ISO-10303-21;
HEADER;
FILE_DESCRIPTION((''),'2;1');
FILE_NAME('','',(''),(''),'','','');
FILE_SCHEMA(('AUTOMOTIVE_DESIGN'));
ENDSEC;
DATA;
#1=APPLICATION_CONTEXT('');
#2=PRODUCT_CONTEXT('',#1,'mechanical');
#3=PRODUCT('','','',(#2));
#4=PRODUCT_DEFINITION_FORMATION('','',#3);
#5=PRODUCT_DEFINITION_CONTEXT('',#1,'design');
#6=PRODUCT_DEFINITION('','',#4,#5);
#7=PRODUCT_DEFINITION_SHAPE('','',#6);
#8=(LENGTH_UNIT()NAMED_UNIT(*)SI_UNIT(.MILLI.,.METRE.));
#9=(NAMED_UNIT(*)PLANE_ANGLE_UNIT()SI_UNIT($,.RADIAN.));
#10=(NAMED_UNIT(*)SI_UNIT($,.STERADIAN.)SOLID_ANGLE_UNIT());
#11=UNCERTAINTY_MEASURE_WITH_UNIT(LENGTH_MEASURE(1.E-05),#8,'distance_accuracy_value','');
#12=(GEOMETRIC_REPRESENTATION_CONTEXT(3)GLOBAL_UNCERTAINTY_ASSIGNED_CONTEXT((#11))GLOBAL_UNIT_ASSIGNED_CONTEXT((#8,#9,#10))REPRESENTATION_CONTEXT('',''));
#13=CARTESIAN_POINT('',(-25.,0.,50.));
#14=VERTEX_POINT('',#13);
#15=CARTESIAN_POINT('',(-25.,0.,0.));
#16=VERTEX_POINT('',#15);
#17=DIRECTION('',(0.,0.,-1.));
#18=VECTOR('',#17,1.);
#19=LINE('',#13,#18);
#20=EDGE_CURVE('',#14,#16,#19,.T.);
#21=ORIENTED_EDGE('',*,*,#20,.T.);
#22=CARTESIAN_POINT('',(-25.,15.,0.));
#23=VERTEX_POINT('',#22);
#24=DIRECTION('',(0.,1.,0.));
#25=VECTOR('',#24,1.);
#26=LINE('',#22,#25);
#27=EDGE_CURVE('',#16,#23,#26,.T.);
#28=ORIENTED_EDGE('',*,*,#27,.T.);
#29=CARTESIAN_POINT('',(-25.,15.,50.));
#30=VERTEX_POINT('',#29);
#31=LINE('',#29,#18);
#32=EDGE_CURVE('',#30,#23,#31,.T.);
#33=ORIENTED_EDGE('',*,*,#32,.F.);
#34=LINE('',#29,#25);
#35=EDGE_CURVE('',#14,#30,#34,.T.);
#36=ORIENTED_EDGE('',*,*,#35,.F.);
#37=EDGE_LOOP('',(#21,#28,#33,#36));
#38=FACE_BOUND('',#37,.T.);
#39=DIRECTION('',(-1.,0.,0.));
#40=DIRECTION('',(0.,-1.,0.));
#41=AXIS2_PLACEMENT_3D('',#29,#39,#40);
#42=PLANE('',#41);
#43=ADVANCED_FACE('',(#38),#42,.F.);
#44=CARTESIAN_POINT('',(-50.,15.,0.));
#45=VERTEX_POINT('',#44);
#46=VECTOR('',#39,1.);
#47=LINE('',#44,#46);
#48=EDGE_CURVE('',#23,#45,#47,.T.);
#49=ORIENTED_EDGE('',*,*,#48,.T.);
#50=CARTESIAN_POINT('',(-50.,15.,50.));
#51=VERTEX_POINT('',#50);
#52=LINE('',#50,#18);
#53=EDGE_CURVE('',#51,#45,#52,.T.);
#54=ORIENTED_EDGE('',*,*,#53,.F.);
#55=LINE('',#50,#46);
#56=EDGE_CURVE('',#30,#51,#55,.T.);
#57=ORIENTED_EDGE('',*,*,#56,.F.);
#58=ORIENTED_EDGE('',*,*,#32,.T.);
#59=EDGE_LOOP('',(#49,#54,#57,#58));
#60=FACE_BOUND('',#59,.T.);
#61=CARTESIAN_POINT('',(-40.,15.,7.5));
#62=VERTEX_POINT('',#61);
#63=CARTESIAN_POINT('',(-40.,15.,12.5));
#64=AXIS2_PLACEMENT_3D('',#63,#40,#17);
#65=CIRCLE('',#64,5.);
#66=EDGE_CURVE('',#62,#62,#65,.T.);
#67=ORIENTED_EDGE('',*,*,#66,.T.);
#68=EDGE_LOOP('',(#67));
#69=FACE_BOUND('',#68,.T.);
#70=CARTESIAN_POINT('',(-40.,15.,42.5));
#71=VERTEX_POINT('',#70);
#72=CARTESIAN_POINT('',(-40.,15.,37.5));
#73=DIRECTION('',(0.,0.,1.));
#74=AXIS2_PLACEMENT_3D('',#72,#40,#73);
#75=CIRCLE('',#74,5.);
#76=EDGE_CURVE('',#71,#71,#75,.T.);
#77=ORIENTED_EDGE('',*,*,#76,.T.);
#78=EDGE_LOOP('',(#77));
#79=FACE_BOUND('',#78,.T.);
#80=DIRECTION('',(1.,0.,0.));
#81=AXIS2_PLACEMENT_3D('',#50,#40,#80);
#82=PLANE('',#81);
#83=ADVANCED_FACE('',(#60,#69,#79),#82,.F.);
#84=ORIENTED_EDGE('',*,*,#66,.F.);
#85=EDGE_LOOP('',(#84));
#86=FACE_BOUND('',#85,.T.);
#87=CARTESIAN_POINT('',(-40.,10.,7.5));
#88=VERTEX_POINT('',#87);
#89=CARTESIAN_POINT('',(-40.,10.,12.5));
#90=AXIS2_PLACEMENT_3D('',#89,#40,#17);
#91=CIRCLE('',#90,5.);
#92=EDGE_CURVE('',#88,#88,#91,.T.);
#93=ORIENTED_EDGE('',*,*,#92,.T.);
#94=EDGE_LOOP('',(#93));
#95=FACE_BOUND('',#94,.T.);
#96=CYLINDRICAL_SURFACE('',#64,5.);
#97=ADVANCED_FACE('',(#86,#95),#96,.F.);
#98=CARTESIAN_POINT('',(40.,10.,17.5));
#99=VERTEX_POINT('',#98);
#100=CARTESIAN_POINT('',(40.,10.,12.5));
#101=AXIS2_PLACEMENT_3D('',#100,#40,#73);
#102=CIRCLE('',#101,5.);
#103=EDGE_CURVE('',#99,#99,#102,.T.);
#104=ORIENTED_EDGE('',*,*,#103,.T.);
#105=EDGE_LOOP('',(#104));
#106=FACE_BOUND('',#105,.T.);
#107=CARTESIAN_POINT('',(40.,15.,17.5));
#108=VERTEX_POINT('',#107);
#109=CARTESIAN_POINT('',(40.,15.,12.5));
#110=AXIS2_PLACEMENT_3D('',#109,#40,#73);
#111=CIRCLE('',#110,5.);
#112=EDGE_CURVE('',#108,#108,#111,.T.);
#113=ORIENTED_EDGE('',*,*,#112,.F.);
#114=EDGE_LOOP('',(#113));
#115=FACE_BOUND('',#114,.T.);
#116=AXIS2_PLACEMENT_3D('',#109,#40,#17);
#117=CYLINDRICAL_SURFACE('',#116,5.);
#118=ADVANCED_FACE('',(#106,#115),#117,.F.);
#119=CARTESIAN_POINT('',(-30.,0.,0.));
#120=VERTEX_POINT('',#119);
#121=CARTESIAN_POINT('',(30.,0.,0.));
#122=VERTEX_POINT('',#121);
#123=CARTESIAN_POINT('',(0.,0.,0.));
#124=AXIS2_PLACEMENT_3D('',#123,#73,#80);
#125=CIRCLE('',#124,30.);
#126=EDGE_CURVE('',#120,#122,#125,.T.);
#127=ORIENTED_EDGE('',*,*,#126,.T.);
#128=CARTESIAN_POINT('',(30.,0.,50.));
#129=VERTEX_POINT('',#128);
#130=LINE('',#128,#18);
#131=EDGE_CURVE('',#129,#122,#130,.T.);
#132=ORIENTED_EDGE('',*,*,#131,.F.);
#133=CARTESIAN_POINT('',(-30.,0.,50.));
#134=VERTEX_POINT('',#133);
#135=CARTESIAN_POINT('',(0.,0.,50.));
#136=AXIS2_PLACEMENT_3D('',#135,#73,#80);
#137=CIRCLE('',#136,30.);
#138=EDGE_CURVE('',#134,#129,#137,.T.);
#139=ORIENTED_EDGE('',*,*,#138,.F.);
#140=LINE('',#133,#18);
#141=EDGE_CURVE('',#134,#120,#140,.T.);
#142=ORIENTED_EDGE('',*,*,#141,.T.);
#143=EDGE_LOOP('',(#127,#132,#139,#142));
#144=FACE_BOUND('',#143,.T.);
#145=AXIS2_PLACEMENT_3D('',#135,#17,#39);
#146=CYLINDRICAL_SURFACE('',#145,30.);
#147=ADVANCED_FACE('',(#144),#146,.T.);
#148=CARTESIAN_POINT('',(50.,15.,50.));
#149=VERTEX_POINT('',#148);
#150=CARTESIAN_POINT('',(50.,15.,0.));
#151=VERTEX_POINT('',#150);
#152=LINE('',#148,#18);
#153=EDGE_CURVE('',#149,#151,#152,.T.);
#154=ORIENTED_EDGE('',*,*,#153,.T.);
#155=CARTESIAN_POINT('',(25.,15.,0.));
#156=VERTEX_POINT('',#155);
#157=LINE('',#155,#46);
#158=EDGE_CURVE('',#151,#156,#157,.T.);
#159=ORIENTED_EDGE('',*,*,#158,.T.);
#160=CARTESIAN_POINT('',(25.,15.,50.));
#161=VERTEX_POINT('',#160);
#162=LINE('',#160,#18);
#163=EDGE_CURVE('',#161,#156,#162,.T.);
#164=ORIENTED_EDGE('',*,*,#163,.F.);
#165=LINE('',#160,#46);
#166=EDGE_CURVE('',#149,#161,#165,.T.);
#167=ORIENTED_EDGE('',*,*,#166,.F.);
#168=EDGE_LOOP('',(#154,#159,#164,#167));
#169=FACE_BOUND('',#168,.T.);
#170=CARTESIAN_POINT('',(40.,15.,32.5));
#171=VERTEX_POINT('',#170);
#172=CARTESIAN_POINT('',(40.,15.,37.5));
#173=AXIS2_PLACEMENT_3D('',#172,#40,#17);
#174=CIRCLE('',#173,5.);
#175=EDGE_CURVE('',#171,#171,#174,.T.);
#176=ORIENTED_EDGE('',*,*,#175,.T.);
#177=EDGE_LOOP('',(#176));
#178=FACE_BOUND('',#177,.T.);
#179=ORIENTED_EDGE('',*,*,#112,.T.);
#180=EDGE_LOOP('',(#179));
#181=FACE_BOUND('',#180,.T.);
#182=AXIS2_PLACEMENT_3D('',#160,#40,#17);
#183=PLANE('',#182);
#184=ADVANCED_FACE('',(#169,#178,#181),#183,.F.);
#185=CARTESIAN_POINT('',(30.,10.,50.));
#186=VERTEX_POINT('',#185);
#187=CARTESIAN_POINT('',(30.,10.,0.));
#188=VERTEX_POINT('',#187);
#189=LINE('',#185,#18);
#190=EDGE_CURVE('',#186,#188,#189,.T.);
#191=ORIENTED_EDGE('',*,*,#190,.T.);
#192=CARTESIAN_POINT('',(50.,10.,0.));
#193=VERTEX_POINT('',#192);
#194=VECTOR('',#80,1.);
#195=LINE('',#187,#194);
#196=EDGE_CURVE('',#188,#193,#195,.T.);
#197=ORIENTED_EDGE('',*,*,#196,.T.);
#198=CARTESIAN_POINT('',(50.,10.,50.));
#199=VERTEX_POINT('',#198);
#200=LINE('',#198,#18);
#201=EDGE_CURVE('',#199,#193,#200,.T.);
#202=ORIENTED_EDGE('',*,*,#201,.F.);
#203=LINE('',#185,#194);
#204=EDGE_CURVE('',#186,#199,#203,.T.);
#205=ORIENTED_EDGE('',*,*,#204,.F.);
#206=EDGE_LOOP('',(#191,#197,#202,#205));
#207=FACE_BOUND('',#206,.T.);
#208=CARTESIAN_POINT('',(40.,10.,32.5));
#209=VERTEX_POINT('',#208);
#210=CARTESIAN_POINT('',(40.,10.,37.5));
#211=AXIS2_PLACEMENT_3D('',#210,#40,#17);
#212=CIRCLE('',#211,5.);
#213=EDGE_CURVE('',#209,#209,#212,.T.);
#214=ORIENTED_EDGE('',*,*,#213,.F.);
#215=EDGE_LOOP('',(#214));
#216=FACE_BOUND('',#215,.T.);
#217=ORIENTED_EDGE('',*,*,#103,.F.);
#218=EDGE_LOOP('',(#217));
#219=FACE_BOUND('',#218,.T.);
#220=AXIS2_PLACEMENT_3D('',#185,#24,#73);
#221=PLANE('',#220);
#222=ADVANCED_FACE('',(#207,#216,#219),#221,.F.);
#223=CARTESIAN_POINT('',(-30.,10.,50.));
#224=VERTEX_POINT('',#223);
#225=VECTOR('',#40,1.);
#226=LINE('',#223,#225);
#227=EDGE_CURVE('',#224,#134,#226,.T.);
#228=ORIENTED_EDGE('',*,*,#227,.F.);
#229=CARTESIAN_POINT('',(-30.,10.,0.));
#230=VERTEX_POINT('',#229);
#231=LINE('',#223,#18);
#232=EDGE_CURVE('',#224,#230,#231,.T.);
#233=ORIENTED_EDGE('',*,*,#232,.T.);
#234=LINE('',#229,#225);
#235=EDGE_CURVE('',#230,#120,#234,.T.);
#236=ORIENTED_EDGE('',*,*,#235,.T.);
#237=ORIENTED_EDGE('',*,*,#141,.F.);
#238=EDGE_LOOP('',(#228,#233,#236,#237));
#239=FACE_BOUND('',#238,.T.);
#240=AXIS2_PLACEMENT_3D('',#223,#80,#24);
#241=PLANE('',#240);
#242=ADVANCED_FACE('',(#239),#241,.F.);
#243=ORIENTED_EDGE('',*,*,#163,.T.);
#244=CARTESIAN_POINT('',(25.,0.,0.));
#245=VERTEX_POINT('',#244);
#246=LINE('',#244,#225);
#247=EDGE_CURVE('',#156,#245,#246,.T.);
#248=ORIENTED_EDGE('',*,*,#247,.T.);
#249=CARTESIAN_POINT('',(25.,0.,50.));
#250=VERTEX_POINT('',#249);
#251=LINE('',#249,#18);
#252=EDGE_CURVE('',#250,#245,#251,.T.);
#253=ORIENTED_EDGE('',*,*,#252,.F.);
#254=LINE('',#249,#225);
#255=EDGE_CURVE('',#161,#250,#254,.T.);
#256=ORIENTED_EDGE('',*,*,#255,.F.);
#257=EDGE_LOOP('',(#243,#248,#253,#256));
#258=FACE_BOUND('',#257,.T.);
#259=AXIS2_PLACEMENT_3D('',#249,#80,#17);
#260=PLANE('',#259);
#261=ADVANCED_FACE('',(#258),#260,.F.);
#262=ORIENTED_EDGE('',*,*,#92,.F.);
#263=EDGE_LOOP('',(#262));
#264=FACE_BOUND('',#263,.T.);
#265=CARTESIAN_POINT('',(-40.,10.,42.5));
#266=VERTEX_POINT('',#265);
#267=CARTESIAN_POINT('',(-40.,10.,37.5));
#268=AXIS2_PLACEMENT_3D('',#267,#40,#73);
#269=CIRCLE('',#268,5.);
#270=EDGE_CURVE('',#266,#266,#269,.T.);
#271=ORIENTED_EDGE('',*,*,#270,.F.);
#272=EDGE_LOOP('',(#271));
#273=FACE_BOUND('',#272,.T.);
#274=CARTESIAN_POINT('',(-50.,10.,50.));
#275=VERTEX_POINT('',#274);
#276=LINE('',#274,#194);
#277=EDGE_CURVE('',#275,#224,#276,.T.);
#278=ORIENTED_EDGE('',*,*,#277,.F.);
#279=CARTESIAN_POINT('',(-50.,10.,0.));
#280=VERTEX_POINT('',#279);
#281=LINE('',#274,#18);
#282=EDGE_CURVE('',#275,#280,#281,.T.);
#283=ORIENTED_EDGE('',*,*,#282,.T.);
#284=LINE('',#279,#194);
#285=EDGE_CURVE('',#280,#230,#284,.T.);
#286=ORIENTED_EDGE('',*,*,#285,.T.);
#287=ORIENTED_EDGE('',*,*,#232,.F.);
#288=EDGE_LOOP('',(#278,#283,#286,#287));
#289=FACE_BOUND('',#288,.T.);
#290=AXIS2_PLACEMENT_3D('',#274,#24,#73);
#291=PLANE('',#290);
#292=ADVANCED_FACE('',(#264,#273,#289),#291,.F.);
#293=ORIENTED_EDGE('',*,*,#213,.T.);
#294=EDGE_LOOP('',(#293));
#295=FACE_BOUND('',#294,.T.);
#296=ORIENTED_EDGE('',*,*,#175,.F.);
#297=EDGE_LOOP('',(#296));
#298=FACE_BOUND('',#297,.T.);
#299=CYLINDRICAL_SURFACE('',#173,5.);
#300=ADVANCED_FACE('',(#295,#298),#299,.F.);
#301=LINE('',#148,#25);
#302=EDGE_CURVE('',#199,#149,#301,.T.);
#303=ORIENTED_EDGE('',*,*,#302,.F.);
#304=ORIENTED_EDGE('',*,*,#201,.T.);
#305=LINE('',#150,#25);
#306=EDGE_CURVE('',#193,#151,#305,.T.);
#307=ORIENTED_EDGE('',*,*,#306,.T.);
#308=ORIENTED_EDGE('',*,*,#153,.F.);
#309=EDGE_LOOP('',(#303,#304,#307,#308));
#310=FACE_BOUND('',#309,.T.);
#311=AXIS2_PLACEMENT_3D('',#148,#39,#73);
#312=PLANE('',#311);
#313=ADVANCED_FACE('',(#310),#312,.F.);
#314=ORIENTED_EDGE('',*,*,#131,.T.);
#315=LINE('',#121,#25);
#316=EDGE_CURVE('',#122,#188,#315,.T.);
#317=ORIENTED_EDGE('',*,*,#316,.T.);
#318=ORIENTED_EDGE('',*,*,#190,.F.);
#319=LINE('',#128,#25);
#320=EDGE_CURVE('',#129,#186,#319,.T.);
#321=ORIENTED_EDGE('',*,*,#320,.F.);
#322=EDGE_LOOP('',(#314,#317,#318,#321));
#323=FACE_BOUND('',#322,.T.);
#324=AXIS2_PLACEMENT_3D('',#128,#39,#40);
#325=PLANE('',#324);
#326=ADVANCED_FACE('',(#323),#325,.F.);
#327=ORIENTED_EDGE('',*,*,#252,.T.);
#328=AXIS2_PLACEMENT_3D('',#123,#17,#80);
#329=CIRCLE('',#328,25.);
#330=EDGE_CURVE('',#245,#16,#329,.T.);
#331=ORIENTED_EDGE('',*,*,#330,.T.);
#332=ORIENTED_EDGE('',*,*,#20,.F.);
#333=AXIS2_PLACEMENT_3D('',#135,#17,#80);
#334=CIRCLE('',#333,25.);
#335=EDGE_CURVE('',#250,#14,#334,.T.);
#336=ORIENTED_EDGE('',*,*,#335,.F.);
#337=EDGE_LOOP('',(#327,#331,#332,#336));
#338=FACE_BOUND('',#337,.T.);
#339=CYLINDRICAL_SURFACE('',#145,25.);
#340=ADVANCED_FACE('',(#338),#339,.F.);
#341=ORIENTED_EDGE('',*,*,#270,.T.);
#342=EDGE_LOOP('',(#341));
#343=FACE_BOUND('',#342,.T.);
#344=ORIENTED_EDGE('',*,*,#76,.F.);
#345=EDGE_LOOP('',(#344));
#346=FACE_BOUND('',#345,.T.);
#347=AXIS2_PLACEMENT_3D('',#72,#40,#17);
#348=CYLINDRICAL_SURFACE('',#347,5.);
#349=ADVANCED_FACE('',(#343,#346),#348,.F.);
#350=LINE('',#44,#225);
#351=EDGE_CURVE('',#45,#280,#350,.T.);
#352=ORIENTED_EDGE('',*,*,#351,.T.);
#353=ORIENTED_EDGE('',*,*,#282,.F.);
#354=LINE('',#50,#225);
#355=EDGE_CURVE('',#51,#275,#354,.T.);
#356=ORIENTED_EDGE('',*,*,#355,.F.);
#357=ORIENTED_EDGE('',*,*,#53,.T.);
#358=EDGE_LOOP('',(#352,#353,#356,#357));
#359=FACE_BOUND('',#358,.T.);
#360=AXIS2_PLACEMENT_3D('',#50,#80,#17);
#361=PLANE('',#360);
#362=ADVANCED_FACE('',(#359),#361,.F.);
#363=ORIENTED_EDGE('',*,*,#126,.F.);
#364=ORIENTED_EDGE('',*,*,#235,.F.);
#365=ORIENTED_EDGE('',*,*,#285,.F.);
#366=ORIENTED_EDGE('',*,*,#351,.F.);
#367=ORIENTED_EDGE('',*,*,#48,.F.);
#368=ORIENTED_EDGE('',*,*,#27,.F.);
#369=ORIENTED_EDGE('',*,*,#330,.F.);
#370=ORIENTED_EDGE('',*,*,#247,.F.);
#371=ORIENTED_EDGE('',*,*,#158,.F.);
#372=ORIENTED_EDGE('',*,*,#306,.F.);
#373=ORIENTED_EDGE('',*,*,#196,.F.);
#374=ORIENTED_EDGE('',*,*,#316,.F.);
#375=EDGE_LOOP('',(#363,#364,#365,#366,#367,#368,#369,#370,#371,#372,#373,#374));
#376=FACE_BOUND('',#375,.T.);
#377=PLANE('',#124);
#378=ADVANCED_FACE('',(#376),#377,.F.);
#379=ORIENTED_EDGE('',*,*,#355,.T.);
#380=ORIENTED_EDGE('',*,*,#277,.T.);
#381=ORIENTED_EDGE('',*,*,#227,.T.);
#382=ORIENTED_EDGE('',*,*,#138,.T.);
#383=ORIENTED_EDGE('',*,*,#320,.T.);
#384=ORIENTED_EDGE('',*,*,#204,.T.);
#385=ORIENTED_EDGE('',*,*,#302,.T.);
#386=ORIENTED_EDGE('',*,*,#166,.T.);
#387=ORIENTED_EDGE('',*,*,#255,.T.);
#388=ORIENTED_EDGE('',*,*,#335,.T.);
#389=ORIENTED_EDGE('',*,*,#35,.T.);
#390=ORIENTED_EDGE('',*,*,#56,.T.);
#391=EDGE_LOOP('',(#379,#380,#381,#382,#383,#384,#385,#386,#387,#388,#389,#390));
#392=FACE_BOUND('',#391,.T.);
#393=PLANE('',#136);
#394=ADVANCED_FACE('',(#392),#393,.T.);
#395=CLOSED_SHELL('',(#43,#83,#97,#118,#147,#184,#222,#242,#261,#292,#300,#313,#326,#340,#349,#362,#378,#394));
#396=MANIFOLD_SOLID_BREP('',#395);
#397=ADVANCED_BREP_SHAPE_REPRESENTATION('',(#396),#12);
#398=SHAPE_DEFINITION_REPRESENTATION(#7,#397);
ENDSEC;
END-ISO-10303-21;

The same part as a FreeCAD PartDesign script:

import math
import FreeCAD as App
import Part
import Sketcher

doc = App.newDocument("Part")
body = doc.addObject("PartDesign::Body", "Body")

sketch1 = body.newObject("Sketcher::SketchObject", "Sketch")
sketch1.AttachmentSupport = (doc.getObject("XY_Plane"), [""])
sketch1.MapMode = "FlatFace"
sketch1.addGeometry(Part.LineSegment(App.Vector(-25, 15, 0), App.Vector(-50, 15, 0)), False)
sketch1.addGeometry(Part.LineSegment(App.Vector(-50, 15, 0), App.Vector(-50, 10, 0)), False)
sketch1.addGeometry(Part.LineSegment(App.Vector(-50, 10, 0), App.Vector(-30, 10, 0)), False)
sketch1.addGeometry(Part.LineSegment(App.Vector(-30, 10, 0), App.Vector(-30, 0, 0)), False)
sketch1.addGeometry(Part.ArcOfCircle(Part.Circle(App.Vector(0, 0, 0), App.Vector(0, 0, 1), 30), math.radians(180), math.radians(360)), False)
sketch1.addGeometry(Part.LineSegment(App.Vector(30, 0, 0), App.Vector(30, 10, 0)), False)
sketch1.addGeometry(Part.LineSegment(App.Vector(30, 10, 0), App.Vector(50, 10, 0)), False)
sketch1.addGeometry(Part.LineSegment(App.Vector(50, 10, 0), App.Vector(50, 15, 0)), False)
sketch1.addGeometry(Part.LineSegment(App.Vector(50, 15, 0), App.Vector(25, 15, 0)), False)
sketch1.addGeometry(Part.LineSegment(App.Vector(25, 15, 0), App.Vector(25, 0, 0)), False)
sketch1.addGeometry(Part.ArcOfCircle(Part.Circle(App.Vector(0, 0, 0), App.Vector(0, 0, 1), 25), math.radians(180), math.radians(360)), False)
sketch1.addGeometry(Part.LineSegment(App.Vector(-25, 0, 0), App.Vector(-25, 15, 0)), False)
sketch1.addConstraint(Sketcher.Constraint("Coincident", 0, 2, 1, 1))
sketch1.addConstraint(Sketcher.Constraint("Coincident", 1, 2, 2, 1))
sketch1.addConstraint(Sketcher.Constraint("Coincident", 2, 2, 3, 1))
sketch1.addConstraint(Sketcher.Constraint("Tangent", 3, 2, 4, 1))
sketch1.addConstraint(Sketcher.Constraint("Tangent", 4, 2, 5, 1))
sketch1.addConstraint(Sketcher.Constraint("Coincident", 5, 2, 6, 1))
sketch1.addConstraint(Sketcher.Constraint("Coincident", 6, 2, 7, 1))
sketch1.addConstraint(Sketcher.Constraint("Coincident", 7, 2, 8, 1))
sketch1.addConstraint(Sketcher.Constraint("Coincident", 8, 2, 9, 1))
sketch1.addConstraint(Sketcher.Constraint("Tangent", 9, 2, 10, 2))
sketch1.addConstraint(Sketcher.Constraint("Tangent", 10, 1, 11, 1))
sketch1.addConstraint(Sketcher.Constraint("Coincident", 11, 2, 0, 1))
sketch1.addConstraint(Sketcher.Constraint("Horizontal", 0))
sketch1.addConstraint(Sketcher.Constraint("Vertical", 1))
sketch1.addConstraint(Sketcher.Constraint("Horizontal", 2))
sketch1.addConstraint(Sketcher.Constraint("Vertical", 3))
sketch1.addConstraint(Sketcher.Constraint("Vertical", 5))
sketch1.addConstraint(Sketcher.Constraint("Horizontal", 6))
sketch1.addConstraint(Sketcher.Constraint("Vertical", 7))
sketch1.addConstraint(Sketcher.Constraint("Horizontal", 8))
sketch1.addConstraint(Sketcher.Constraint("Vertical", 9))
sketch1.addConstraint(Sketcher.Constraint("Vertical", 11))
sketch1.addConstraint(Sketcher.Constraint("Coincident", 4, 3, -1, 1))
sketch1.addConstraint(Sketcher.Constraint("Coincident", 10, 3, -1, 1))
sketch1.addConstraint(Sketcher.Constraint("Symmetric", 1, 2, 6, 2, -2))
sketch1.addConstraint(Sketcher.Constraint("Horizontal", 0, 2, 7, 2))
sketch1.addConstraint(Sketcher.Constraint("Radius", 4, 30.0))
sketch1.addConstraint(Sketcher.Constraint("Radius", 10, 25.0))
sketch1.addConstraint(Sketcher.Constraint("DistanceX", 0, 2, 0, 1, 25.0))
sketch1.addConstraint(Sketcher.Constraint("DistanceY", 1, 2, 1, 1, 5.0))
sketch1.addConstraint(Sketcher.Constraint("DistanceY", 3, 2, 3, 1, 10.0))
pad1 = body.newObject("PartDesign::Pad", "Pad")
pad1.Profile = sketch1
pad1.Length = 50

sketch2 = body.newObject("Sketcher::SketchObject", "Sketch001")
sketch2.AttachmentSupport = (doc.getObject("XZ_Plane"), [""])
sketch2.MapMode = "FlatFace"
sketch2.AttachmentOffset = App.Placement(App.Vector(0, 0, -10), App.Rotation())
sketch2.addGeometry(Part.Circle(App.Vector(40, 38, 0), App.Vector(0, 0, 1), 5), False)
sketch2.addGeometry(Part.Circle(App.Vector(40, 12, 0), App.Vector(0, 0, 1), 5), False)
sketch2.addGeometry(Part.Circle(App.Vector(-40, 12, 0), App.Vector(0, 0, 1), 5), False)
sketch2.addGeometry(Part.Circle(App.Vector(-40, 38, 0), App.Vector(0, 0, 1), 5), False)
sketch2.addConstraint(Sketcher.Constraint("Equal", 0, 1))
sketch2.addConstraint(Sketcher.Constraint("Equal", 1, 2))
sketch2.addConstraint(Sketcher.Constraint("Equal", 2, 3))
sketch2.addConstraint(Sketcher.Constraint("Symmetric", 1, 3, 2, 3, -2))
sketch2.addConstraint(Sketcher.Constraint("Symmetric", 0, 3, 3, 3, -2))
sketch2.addConstraint(Sketcher.Constraint("Vertical", 0, 3, 1, 3))
sketch2.addConstraint(Sketcher.Constraint("Diameter", 0, 10.0))
sketch2.addConstraint(Sketcher.Constraint("DistanceX", -1, 1, 0, 3, 40.0))
sketch2.addConstraint(Sketcher.Constraint("DistanceY", 1, 3, 0, 3, 25.0))
sketch2.addConstraint(Sketcher.Constraint("DistanceY", -1, 1, 0, 3, 37.5))
pocket1 = body.newObject("PartDesign::Pocket", "Pocket")
pocket1.Profile = sketch2
pocket1.Type = "ThroughAll"

doc.recompute()
